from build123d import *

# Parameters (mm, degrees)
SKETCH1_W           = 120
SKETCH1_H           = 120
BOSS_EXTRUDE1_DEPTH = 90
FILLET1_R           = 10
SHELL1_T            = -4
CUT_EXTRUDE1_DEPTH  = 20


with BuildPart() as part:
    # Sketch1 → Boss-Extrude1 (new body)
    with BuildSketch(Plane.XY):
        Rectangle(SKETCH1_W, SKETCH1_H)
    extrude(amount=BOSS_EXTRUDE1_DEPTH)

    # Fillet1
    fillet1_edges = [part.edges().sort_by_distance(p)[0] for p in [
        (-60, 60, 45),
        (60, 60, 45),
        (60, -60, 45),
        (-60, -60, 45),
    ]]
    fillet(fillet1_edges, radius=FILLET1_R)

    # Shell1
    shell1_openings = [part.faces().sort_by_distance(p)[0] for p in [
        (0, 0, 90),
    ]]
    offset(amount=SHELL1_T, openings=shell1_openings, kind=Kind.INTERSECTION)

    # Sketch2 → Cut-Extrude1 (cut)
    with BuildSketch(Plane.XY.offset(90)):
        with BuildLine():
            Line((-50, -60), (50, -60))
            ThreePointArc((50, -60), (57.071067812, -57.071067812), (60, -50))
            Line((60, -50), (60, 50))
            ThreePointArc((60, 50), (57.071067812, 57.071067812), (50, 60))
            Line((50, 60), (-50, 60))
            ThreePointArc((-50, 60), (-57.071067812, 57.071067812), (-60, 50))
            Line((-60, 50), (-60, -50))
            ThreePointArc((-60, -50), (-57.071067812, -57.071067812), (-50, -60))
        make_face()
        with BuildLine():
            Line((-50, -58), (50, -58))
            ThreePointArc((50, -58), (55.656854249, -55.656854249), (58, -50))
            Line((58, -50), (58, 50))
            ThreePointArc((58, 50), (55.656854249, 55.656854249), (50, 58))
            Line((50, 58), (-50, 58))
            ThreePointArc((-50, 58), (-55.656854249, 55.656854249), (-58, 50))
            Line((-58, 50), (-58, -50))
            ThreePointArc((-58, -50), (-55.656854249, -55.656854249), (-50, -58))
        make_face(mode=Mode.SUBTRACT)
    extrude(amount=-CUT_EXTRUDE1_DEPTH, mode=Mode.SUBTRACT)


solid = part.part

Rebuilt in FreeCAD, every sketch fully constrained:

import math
import FreeCAD as App
import Part
import Sketcher

V = App.Vector
Q = App.Units.Quantity


def edges_at(feature, points):
    """Names of the edges that pass closest to the given points."""
    edges = feature.Shape.Edges
    near = lambda p: min(range(len(edges)), key=lambda i: edges[i].distToShape(Part.Vertex(*p))[0])
    return sorted({f"Edge{near(p) + 1}" for p in points})


def faces_at(feature, points):
    """Names of the faces that lie closest to the given points."""
    faces = feature.Shape.Faces
    near = lambda p: min(range(len(faces)), key=lambda i: faces[i].distToShape(Part.Vertex(*p))[0])
    return sorted({f"Face{near(p) + 1}" for p in points})

doc = App.newDocument("Part")
body = doc.addObject("PartDesign::Body", "Body")

# Sketch on XY plane
sketch1 = body.newObject("Sketcher::SketchObject", "Sketch")
sketch1.AttachmentSupport = (doc.getObject("XY_Plane"), [""])
sketch1.MapMode = "FlatFace"
sketch1.addGeometry(Part.LineSegment(V(-60, 60, 0), V(-60, -60, 0)), False)
sketch1.addGeometry(Part.LineSegment(V(-60, -60, 0), V(60, -60, 0)), False)
sketch1.addGeometry(Part.LineSegment(V(60, -60, 0), V(60, 60, 0)), False)
sketch1.addGeometry(Part.LineSegment(V(60, 60, 0), V(-60, 60, 0)), False)
sketch1.addConstraint(Sketcher.Constraint("Coincident", 0, 2, 1, 1))
sketch1.addConstraint(Sketcher.Constraint("Coincident", 1, 2, 2, 1))
sketch1.addConstraint(Sketcher.Constraint("Coincident", 2, 2, 3, 1))
sketch1.addConstraint(Sketcher.Constraint("Coincident", 3, 2, 0, 1))
sketch1.addConstraint(Sketcher.Constraint("Vertical", 0))
sketch1.addConstraint(Sketcher.Constraint("Horizontal", 1))
sketch1.addConstraint(Sketcher.Constraint("Vertical", 2))
sketch1.addConstraint(Sketcher.Constraint("Horizontal", 3))
sketch1.addConstraint(Sketcher.Constraint("Symmetric", 0, 2, 2, 2, -1, 1))
sketch1.addConstraint(Sketcher.Constraint("Equal", 3, 0))
sketch1.addConstraint(Sketcher.Constraint("DistanceX", 1, 1, 1, 2, Q("120 mm")))
pad1 = body.newObject("PartDesign::Pad", "Pad")
pad1.Profile = sketch1
pad1.Length = 90
doc.recompute()

fillet = body.newObject("PartDesign::Fillet", "Fillet")
fillet.Base = (pad1, edges_at(pad1, [
    (-60, 60, 45),
    (60, 60, 45),
    (60, -60, 45),
    (-60, -60, 45),
]))
fillet.Radius = 10
doc.recompute()

thickness = body.newObject("PartDesign::Thickness", "Thickness")
thickness.Base = (fillet, faces_at(fillet, [(0, 0, 90)]))
thickness.Value = 4
thickness.Reversed = True
thickness.Join = "Intersection"

# Sketch on XY plane
sketch2 = body.newObject("Sketcher::SketchObject", "Sketch001")
sketch2.AttachmentSupport = (doc.getObject("XY_Plane"), [""])
sketch2.MapMode = "FlatFace"
sketch2.AttachmentOffset = App.Placement(V(0, 0, 90), App.Rotation())
sketch2.addGeometry(Part.LineSegment(V(-50, -60, 0), V(50, -60, 0)), False)
sketch2.addGeometry(Part.ArcOfCircle(Part.Circle(V(50, -50, 0), V(0, 0, 1), 10), math.radians(-90), math.radians(0)), False)
sketch2.addGeometry(Part.LineSegment(V(60, -50, 0), V(60, 50, 0)), False)
sketch2.addGeometry(Part.ArcOfCircle(Part.Circle(V(50, 50, 0), V(0, 0, 1), 10), math.radians(0), math.radians(90)), False)
sketch2.addGeometry(Part.LineSegment(V(50, 60, 0), V(-50, 60, 0)), False)
sketch2.addGeometry(Part.ArcOfCircle(Part.Circle(V(-50, 50, 0), V(0, 0, 1), 10), math.radians(90), math.radians(180)), False)
sketch2.addGeometry(Part.LineSegment(V(-60, 50, 0), V(-60, -50, 0)), False)
sketch2.addGeometry(Part.ArcOfCircle(Part.Circle(V(-50, -50, 0), V(0, 0, 1), 10), math.radians(180), math.radians(270)), False)
sketch2.addGeometry(Part.LineSegment(V(50, -58, 0), V(-50, -58, 0)), False)
sketch2.addGeometry(Part.ArcOfCircle(Part.Circle(V(-50, -50, 0), V(0, 0, 1), 8), math.radians(-180), math.radians(-90)), False)
sketch2.addGeometry(Part.LineSegment(V(-58, -50, 0), V(-58, 50, 0)), False)
sketch2.addGeometry(Part.ArcOfCircle(Part.Circle(V(-50, 50, 0), V(0, 0, 1), 8), math.radians(90), math.radians(180)), False)
sketch2.addGeometry(Part.LineSegment(V(-50, 58, 0), V(50, 58, 0)), False)
sketch2.addGeometry(Part.ArcOfCircle(Part.Circle(V(50, 50, 0), V(0, 0, 1), 8), math.radians(0), math.radians(90)), False)
sketch2.addGeometry(Part.LineSegment(V(58, 50, 0), V(58, -50, 0)), False)
sketch2.addGeometry(Part.ArcOfCircle(Part.Circle(V(50, -50, 0), V(0, 0, 1), 8), math.radians(-90), math.radians(0)), False)
sketch2.addConstraint(Sketcher.Constraint("Tangent", 0, 2, 1, 1))
sketch2.addConstraint(Sketcher.Constraint("Tangent", 1, 2, 2, 1))
sketch2.addConstraint(Sketcher.Constraint("Tangent", 2, 2, 3, 1))
sketch2.addConstraint(Sketcher.Constraint("Tangent", 3, 2, 4, 1))
sketch2.addConstraint(Sketcher.Constraint("Tangent", 4, 2, 5, 1))
sketch2.addConstraint(Sketcher.Constraint("Tangent", 5, 2, 6, 1))
sketch2.addConstraint(Sketcher.Constraint("Tangent", 6, 2, 7, 1))
sketch2.addConstraint(Sketcher.Constraint("Tangent", 7, 2, 0, 1))
sketch2.addConstraint(Sketcher.Constraint("Tangent", 8, 2, 9, 2))
sketch2.addConstraint(Sketcher.Constraint("Tangent", 9, 1, 10, 1))
sketch2.addConstraint(Sketcher.Constraint("Tangent", 10, 2, 11, 2))
sketch2.addConstraint(Sketcher.Constraint("Tangent", 11, 1, 12, 1))
sketch2.addConstraint(Sketcher.Constraint("Tangent", 12, 2, 13, 2))
sketch2.addConstraint(Sketcher.Constraint("Tangent", 13, 1, 14, 1))
sketch2.addConstraint(Sketcher.Constraint("Tangent", 14, 2, 15, 2))
sketch2.addConstraint(Sketcher.Constraint("Tangent", 15, 1, 8, 1))
sketch2.addConstraint(Sketcher.Constraint("Horizontal", 0))
sketch2.addConstraint(Sketcher.Constraint("Vertical", 2))
sketch2.addConstraint(Sketcher.Constraint("Horizontal", 4))
sketch2.addConstraint(Sketcher.Constraint("Vertical", 6))
sketch2.addConstraint(Sketcher.Constraint("Horizontal", 8))
sketch2.addConstraint(Sketcher.Constraint("Vertical", 10))
sketch2.addConstraint(Sketcher.Constraint("Horizontal", 12))
sketch2.addConstraint(Sketcher.Constraint("Vertical", 14))
sketch2.addConstraint(Sketcher.Constraint("Coincident", 9, 3, 7, 3))
sketch2.addConstraint(Sketcher.Constraint("Coincident", 11, 3, 5, 3))
sketch2.addConstraint(Sketcher.Constraint("Coincident", 13, 3, 3, 3))
sketch2.addConstraint(Sketcher.Constraint("Equal", 1, 3))
sketch2.addConstraint(Sketcher.Constraint("Equal", 3, 5))
sketch2.addConstraint(Sketcher.Constraint("Equal", 5, 7))
sketch2.addConstraint(Sketcher.Constraint("Equal", 13, 15))
sketch2.addConstraint(Sketcher.Constraint("Symmetric", 1, 3, 5, 3, -1, 1))
sketch2.addConstraint(Sketcher.Constraint("Equal", 12, 2))
sketch2.addConstraint(Sketcher.Constraint("Radius", 1, Q("10 mm")))
sketch2.addConstraint(Sketcher.Constraint("Radius", 9, Q("8 mm")))
sketch2.addConstraint(Sketcher.Constraint("DistanceX", 0, 1, 0, 2, Q("100 mm")))
pocket1 = body.newObject("PartDesign::Pocket", "Pocket")
pocket1.Profile = sketch2
pocket1.Length = 20

doc.recompute()
